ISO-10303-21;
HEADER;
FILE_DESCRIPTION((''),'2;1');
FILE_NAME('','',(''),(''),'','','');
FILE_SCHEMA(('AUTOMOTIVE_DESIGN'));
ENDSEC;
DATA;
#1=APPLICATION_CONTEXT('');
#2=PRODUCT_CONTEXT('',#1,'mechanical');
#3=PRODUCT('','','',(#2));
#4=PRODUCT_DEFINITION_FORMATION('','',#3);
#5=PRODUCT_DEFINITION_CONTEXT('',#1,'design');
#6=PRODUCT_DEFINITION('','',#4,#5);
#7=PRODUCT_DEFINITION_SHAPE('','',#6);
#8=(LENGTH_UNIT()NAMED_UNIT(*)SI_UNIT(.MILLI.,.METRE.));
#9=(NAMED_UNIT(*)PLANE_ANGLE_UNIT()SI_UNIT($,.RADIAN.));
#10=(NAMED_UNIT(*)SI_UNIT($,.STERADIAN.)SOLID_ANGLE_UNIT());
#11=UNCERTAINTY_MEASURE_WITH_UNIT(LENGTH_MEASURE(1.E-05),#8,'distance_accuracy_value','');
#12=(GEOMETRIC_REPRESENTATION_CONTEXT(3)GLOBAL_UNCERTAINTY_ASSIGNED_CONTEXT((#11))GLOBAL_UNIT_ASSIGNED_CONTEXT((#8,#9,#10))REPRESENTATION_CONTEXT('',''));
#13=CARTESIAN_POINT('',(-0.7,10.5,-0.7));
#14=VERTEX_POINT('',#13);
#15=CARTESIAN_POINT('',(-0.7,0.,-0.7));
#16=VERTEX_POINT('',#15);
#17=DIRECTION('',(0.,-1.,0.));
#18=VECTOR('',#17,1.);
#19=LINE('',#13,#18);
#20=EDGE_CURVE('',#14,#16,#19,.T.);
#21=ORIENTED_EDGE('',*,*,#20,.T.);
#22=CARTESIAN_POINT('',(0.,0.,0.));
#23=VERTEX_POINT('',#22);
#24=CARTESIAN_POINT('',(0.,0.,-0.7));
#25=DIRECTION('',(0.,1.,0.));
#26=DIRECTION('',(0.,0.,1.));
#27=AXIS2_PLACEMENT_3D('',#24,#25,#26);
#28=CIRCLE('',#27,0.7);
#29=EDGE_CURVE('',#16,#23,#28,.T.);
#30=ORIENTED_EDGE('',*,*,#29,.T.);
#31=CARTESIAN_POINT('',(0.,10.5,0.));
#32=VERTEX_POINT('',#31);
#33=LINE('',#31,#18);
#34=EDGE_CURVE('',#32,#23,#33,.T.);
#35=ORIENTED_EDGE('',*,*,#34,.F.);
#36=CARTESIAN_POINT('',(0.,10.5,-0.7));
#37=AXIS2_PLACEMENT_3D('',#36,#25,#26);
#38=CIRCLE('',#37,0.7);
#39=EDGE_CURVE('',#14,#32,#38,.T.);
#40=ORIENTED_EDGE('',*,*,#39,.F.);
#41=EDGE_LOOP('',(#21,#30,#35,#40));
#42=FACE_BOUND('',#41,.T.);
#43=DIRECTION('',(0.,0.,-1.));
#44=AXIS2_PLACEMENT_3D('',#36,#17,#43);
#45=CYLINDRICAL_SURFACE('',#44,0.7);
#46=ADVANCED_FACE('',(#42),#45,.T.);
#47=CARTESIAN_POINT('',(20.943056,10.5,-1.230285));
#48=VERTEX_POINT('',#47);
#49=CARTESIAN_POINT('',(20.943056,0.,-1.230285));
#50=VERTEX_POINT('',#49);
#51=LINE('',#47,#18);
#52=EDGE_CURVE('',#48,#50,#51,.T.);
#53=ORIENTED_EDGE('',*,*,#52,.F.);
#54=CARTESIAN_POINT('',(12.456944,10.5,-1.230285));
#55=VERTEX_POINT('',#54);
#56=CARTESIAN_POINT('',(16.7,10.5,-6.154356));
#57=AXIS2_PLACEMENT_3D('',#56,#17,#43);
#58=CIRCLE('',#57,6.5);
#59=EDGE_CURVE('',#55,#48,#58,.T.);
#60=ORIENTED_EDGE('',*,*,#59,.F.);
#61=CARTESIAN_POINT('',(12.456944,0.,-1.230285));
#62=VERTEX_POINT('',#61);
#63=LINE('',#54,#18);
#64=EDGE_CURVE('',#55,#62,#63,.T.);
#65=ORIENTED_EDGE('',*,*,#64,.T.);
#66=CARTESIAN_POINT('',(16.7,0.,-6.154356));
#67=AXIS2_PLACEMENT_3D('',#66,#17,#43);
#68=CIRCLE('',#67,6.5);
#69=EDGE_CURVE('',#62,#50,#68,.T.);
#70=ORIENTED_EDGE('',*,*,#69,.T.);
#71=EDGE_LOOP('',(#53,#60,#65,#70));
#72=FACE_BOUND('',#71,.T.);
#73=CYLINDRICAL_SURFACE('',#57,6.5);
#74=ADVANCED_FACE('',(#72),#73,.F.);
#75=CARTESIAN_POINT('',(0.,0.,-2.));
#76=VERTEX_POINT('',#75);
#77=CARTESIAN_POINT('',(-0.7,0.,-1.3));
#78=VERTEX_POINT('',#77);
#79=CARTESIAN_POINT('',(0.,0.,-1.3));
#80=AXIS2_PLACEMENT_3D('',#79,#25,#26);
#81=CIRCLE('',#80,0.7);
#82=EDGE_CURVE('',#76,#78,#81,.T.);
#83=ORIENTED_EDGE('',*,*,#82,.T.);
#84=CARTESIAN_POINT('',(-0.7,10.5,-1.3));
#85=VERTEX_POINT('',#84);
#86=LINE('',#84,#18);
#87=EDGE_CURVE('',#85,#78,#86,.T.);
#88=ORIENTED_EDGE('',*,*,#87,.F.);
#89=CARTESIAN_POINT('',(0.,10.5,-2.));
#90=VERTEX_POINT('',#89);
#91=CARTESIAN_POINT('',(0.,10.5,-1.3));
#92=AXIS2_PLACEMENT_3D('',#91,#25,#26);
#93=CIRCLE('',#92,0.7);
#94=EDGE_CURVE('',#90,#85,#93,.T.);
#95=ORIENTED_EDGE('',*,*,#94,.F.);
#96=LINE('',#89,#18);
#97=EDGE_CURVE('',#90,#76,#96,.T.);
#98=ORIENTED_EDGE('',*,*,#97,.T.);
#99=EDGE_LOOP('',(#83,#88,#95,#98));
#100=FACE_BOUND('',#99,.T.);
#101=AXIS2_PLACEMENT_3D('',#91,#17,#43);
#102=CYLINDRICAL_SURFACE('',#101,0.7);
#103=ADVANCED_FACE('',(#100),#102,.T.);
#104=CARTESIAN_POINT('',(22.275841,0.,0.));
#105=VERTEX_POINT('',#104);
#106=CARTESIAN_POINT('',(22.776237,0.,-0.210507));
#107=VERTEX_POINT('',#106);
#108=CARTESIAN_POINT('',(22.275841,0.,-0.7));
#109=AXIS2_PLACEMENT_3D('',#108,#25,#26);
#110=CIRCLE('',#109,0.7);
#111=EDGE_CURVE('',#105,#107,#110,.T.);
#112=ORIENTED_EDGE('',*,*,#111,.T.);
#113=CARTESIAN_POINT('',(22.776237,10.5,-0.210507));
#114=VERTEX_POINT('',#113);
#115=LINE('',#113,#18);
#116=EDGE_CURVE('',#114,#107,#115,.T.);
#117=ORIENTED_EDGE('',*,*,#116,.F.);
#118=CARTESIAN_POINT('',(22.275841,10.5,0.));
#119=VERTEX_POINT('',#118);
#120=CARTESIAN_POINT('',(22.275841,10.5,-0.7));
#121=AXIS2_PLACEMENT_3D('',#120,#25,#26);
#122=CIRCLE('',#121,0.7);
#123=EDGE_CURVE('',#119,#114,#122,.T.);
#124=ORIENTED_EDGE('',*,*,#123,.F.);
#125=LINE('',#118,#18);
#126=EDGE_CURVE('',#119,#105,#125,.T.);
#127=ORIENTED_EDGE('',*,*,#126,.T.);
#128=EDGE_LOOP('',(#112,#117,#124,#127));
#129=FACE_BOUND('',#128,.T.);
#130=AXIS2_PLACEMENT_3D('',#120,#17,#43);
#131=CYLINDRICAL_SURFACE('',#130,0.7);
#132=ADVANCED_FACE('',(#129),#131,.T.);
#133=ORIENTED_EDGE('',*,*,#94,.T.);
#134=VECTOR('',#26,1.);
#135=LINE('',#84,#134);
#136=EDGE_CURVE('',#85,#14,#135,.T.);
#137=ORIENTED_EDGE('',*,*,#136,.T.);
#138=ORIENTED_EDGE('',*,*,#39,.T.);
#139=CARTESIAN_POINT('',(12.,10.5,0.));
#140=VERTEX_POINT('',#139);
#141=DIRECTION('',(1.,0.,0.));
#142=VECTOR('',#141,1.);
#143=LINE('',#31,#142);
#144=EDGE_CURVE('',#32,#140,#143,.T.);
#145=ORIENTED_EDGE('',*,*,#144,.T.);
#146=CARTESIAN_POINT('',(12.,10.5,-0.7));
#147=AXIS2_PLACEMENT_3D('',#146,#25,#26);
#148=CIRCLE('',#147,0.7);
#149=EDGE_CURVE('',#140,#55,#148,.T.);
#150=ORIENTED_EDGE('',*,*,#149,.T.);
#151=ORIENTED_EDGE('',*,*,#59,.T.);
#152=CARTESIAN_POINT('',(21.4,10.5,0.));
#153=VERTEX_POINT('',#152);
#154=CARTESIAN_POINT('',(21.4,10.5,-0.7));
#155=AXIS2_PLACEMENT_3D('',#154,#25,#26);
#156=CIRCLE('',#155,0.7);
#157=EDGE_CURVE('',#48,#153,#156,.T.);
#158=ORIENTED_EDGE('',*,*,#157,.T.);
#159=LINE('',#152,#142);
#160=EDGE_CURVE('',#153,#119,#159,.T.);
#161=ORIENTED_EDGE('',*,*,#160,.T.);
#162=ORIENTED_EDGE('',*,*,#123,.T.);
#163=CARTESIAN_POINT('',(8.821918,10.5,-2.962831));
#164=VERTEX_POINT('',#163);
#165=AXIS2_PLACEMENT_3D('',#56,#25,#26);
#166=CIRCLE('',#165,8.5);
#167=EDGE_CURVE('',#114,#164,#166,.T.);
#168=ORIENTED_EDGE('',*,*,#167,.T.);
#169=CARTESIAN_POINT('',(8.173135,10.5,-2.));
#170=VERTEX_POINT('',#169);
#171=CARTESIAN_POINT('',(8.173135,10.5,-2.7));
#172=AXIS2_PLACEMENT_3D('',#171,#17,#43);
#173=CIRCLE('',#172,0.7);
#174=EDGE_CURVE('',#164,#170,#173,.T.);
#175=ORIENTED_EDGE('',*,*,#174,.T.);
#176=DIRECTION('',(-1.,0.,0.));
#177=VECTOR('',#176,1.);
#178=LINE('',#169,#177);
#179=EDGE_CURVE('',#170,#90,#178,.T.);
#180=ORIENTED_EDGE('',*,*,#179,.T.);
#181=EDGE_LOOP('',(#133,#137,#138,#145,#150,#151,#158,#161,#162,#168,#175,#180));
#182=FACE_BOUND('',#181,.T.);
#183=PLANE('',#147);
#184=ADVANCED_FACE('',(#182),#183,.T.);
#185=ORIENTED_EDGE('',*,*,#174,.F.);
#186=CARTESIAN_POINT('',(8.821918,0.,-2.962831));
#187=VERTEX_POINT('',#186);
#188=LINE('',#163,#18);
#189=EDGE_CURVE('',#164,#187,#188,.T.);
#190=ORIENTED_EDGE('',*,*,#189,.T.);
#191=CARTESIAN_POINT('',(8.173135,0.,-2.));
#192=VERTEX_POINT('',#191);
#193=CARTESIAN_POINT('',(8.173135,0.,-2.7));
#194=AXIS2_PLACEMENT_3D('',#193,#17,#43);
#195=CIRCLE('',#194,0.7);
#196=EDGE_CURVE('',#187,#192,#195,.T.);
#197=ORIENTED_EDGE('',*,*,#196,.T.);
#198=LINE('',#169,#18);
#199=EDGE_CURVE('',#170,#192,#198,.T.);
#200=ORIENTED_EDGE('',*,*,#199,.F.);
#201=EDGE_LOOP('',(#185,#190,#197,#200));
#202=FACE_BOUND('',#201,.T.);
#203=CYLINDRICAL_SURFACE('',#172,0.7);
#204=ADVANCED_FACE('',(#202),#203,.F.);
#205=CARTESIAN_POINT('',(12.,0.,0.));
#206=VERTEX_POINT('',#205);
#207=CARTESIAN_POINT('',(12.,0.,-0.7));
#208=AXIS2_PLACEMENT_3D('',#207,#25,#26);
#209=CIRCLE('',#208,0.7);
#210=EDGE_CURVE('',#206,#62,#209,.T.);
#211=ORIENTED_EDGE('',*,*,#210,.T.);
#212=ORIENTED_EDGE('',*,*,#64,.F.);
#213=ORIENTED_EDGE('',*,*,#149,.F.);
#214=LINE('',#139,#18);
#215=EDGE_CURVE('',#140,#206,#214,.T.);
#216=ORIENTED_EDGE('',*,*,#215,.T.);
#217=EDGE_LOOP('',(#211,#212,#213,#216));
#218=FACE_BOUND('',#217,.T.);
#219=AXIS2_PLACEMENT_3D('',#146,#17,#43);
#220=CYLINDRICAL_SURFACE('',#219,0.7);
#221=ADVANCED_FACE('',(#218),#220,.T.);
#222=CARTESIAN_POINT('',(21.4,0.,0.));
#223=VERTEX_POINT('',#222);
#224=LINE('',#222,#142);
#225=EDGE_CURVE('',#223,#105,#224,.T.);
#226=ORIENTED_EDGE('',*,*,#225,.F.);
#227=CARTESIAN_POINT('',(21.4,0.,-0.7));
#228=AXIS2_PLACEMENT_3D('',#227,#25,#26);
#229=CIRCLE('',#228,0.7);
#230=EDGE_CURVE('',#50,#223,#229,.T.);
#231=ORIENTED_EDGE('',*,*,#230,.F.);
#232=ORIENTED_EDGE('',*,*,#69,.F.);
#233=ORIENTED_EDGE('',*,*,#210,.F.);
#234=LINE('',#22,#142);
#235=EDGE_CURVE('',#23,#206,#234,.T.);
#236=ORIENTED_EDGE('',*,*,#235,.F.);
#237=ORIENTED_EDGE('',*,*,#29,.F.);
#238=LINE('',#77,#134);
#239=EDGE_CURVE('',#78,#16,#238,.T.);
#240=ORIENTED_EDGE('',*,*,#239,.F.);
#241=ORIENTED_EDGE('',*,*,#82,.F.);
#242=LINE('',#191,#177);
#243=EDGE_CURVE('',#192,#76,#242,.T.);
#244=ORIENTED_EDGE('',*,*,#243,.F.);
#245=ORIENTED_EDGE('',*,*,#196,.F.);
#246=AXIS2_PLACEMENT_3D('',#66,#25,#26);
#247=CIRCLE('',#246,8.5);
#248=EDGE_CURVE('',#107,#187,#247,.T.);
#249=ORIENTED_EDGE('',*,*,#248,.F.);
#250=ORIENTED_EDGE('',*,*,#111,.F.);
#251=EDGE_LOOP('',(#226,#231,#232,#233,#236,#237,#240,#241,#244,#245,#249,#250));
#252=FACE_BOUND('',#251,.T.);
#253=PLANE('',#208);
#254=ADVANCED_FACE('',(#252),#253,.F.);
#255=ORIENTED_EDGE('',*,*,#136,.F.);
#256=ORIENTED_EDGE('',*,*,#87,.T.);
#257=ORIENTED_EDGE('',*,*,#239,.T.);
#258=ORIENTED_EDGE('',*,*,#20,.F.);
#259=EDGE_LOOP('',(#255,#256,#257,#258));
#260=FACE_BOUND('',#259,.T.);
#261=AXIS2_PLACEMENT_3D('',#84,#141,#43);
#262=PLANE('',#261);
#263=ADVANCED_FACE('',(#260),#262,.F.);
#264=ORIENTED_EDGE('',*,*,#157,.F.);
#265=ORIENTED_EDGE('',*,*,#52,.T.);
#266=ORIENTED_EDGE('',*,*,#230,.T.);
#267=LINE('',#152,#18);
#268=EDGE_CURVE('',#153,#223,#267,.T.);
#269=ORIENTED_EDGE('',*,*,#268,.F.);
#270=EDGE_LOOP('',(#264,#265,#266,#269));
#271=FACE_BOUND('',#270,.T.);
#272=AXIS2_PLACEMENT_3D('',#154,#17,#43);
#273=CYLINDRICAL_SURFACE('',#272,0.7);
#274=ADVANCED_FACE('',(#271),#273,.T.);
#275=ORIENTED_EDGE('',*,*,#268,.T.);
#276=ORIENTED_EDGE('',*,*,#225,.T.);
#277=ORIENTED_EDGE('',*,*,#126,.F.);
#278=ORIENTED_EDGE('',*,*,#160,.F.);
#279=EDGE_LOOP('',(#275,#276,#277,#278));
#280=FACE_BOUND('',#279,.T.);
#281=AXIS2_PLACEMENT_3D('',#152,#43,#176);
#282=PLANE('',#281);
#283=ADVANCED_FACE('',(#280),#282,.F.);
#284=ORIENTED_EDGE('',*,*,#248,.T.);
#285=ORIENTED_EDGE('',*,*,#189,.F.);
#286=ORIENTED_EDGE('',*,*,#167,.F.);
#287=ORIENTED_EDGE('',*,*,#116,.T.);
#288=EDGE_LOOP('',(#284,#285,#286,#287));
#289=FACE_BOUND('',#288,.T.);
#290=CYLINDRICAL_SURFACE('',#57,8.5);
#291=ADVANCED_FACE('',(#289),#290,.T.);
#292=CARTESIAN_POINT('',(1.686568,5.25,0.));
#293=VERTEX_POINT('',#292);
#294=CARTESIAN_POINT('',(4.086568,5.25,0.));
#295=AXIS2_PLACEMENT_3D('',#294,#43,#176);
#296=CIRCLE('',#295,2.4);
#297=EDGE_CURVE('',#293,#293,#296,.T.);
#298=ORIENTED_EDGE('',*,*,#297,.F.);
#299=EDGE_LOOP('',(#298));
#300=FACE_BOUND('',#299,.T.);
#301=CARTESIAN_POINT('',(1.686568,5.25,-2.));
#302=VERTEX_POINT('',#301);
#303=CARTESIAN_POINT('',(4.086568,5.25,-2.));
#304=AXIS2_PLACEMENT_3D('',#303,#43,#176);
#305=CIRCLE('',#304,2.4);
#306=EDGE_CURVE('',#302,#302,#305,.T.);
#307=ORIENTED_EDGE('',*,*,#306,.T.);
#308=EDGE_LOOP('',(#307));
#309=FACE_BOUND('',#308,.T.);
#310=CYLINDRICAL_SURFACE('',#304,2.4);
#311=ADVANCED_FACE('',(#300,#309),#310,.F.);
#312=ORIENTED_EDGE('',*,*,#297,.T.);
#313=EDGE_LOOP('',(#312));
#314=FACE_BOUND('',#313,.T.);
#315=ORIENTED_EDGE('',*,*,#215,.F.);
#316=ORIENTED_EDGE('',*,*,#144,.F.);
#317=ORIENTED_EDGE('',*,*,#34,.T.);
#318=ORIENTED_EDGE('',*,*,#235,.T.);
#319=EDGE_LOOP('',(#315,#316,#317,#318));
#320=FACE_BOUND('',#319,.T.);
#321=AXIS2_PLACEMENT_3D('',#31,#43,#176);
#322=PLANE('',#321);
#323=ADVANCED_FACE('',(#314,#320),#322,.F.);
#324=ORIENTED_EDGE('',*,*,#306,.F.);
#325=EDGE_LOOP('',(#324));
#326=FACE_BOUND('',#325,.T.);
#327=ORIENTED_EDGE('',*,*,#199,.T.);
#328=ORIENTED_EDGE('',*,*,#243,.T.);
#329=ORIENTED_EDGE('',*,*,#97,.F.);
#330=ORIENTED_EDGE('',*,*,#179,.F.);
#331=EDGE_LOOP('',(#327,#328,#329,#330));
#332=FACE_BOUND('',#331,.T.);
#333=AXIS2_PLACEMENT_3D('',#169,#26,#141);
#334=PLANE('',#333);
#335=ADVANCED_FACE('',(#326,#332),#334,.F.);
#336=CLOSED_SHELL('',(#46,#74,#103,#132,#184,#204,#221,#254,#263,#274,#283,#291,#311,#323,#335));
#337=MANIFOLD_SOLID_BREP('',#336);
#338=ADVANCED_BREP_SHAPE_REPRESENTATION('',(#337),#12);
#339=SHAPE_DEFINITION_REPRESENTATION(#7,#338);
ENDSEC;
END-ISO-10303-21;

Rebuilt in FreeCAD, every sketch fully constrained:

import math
import FreeCAD as App
import Part
import Sketcher

doc = App.newDocument("Part")
body = doc.addObject("PartDesign::Body", "Body")

# Sketch on XZ plane
sketch1 = body.newObject("Sketcher::SketchObject", "Sketch")
sketch1.AttachmentSupport = (doc.getObject("XZ_Plane"), [""])
sketch1.MapMode = "FlatFace"
sketch1.addGeometry([
    Part.LineSegment(App.Vector(0, 0, 0), App.Vector(12, 0, 0)),  # 0
    Part.ArcOfCircle(Part.Circle(App.Vector(12, -0.7, 0), App.Vector(0, 0, 1), 0.7), math.radians(-49), math.radians(90)),  # 1
    Part.ArcOfCircle(Part.Circle(App.Vector(16.7, -6.2, 0), App.Vector(0, 0, 1), 6.5), math.radians(131), math.radians(409)),  # 2
    Part.ArcOfCircle(Part.Circle(App.Vector(21.4, -0.7, 0), App.Vector(0, 0, 1), 0.7), math.radians(90), math.radians(229)),  # 3
    Part.LineSegment(App.Vector(21.4, 0, 0), App.Vector(22.3, 0, 0)),  # 4
    Part.ArcOfCircle(Part.Circle(App.Vector(22.3, -0.7, 0), App.Vector(0, 0, 1), 0.7), math.radians(44), math.radians(90)),  # 5
    Part.ArcOfCircle(Part.Circle(App.Vector(16.7, -6.2, 0), App.Vector(0, 0, 1), 8.5), math.radians(158), math.radians(404)),  # 6
    Part.ArcOfCircle(Part.Circle(App.Vector(8.2, -2.7, 0), App.Vector(0, 0, 1), 0.7), math.radians(-22), math.radians(90)),  # 7
    Part.LineSegment(App.Vector(8.2, -2, 0), App.Vector(0, -2, 0)),  # 8
    Part.ArcOfCircle(Part.Circle(App.Vector(0, -1.3, 0), App.Vector(0, 0, 1), 0.7), math.radians(180), math.radians(270)),  # 9
    Part.LineSegment(App.Vector(-0.7, -1.3, 0), App.Vector(-0.7, -0.7, 0)),  # 10
    Part.ArcOfCircle(Part.Circle(App.Vector(0, -0.7, 0), App.Vector(0, 0, 1), 0.7), math.radians(90), math.radians(180)),  # 11
], False)
sketch1.addConstraint([
    Sketcher.Constraint("Tangent", 0, 2, 1, 2),
    Sketcher.Constraint("Tangent", 1, 1, 2, 1),
    Sketcher.Constraint("Tangent", 2, 2, 3, 2),
    Sketcher.Constraint("Tangent", 3, 1, 4, 1),
    Sketcher.Constraint("Tangent", 4, 2, 5, 2),
    Sketcher.Constraint("Tangent", 5, 1, 6, 2),
    Sketcher.Constraint("Tangent", 6, 1, 7, 1),
    Sketcher.Constraint("Tangent", 7, 2, 8, 1),
    Sketcher.Constraint("Tangent", 8, 2, 9, 2),
    Sketcher.Constraint("Tangent", 9, 1, 10, 1),
    Sketcher.Constraint("Tangent", 10, 2, 11, 2),
    Sketcher.Constraint("Tangent", 11, 1, 0, 1),
    Sketcher.Constraint("Horizontal", 0),
    Sketcher.Constraint("Horizontal", 4),
    Sketcher.Constraint("Horizontal", 8),
    Sketcher.Constraint("Vertical", 10),
    Sketcher.Constraint("Coincident", 11, 1, -1, 1),
    Sketcher.Constraint("Coincident", 6, 3, 2, 3),
    Sketcher.Constraint("Equal", 1, 3),
    Sketcher.Constraint("Equal", 3, 5),
    Sketcher.Constraint("Equal", 5, 7),
    Sketcher.Constraint("Equal", 7, 9),
    Sketcher.Constraint("Equal", 9, 11),
    Sketcher.Constraint("PointOnObject", 3, 1, -1),
    Sketcher.Constraint("Radius", 1, 0.7),
    Sketcher.Constraint("Radius", 2, 6.5),
    Sketcher.Constraint("Radius", 6, 8.5),
    Sketcher.Constraint("DistanceX", 0, 1, 0, 2, 12.0),
    Sketcher.Constraint("DistanceY", 10, 1, 10, 2, 0.6),
    Sketcher.Constraint("DistanceX", -1, 1, 2, 3, 16.7),
])
pad1 = body.newObject("PartDesign::Pad", "Pad")
pad1.Profile = sketch1
pad1.Length = 10.5
pad1.Reversed = True

# Sketch on XY plane
sketch2 = body.newObject("Sketcher::SketchObject", "Sketch001")
sketch2.AttachmentSupport = (doc.getObject("XY_Plane"), [""])
sketch2.MapMode = "FlatFace"
sketch2.AttachmentOffset = App.Placement(App.Vector(0, 0, -2), App.Rotation())
sketch2.addGeometry(Part.Circle(App.Vector(4.1, 5.2, 0), App.Vector(0, 0, 1), 2.4), False)
sketch2.addConstraint([
    Sketcher.Constraint("Diameter", 0, 4.8),
    Sketcher.Constraint("DistanceY", -1, 1, 0, 3, 5.25),
    Sketcher.Constraint("DistanceX", -1, 1, 0, 3, 4.086568),
])
doc.recompute()
hole = body.newObject("PartDesign::Hole", "Hole")
hole.Profile = sketch2
hole.ThreadType = "None"
hole.Diameter = 4.8
hole.DepthType = "ThroughAll"
hole.Reversed = True

doc.recompute()
